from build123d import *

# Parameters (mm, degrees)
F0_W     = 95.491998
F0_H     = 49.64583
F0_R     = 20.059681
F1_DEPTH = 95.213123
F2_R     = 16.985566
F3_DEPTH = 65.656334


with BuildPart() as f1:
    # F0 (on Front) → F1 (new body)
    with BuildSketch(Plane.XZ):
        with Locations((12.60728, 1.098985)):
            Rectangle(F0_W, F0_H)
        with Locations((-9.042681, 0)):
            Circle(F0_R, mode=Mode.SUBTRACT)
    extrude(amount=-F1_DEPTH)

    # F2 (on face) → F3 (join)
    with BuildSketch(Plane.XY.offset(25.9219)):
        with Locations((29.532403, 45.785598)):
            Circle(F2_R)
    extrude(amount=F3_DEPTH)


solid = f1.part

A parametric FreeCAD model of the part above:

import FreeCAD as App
import Part
import Sketcher

V = App.Vector
Q = App.Units.Quantity


def add_polygon(sketch, points):
    """Adds a closed chain of lines whose ends are joined by coincident constraints."""
    first, n = sketch.GeometryCount, len(points)
    for a, b in zip(points, points[1:] + points[:1]):
        sketch.addGeometry(Part.LineSegment(App.Vector(*a, 0), App.Vector(*b, 0)), False)
    for i in range(n):
        sketch.addConstraint(Sketcher.Constraint("Coincident", first + i, 2, first + (i + 1) % n, 1))

doc = App.newDocument("Part")
body = doc.addObject("PartDesign::Body", "Body")

sketch1 = body.newObject("Sketcher::SketchObject", "Sketch")
sketch1.AttachmentSupport = (doc.getObject("XZ_Plane"), [""])
sketch1.MapMode = "FlatFace"
add_polygon(sketch1, [(-35, 26), (-35, -24), (60, -24), (60, 26)])
sketch1.addGeometry(Part.Circle(V(-9, 0, 0), V(0, 0, 1), 20), False)
sketch1.addConstraint(Sketcher.Constraint("Vertical", 0))
sketch1.addConstraint(Sketcher.Constraint("Horizontal", 1))
sketch1.addConstraint(Sketcher.Constraint("Vertical", 2))
sketch1.addConstraint(Sketcher.Constraint("Horizontal", 3))
sketch1.addConstraint(Sketcher.Constraint("PointOnObject", 4, 3, -1))
sketch1.addConstraint(Sketcher.Constraint("Diameter", 4, Q("40.119362 mm")))
sketch1.addConstraint(Sketcher.Constraint("DistanceY", 0, 2, 0, 1, Q("49.64583 mm")))
sketch1.addConstraint(Sketcher.Constraint("DistanceY", -1, 1, 2, 2, Q("25.9219 mm")))
sketch1.addConstraint(Sketcher.Constraint("DistanceX", 1, 1, 1, 2, Q("95.491998 mm")))
sketch1.addConstraint(Sketcher.Constraint("DistanceX", 4, 3, -1, 1, Q("9.042681 mm")))
sketch1.addConstraint(Sketcher.Constraint("DistanceX", 0, 2, -1, 1, Q("35.138719 mm")))
pad1 = body.newObject("PartDesign::Pad", "Pad")
pad1.Profile = sketch1
pad1.Length = 95.213123
pad1.Reversed = True

sketch2 = body.newObject("Sketcher::SketchObject", "Sketch001")
sketch2.AttachmentSupport = (doc.getObject("XY_Plane"), [""])
sketch2.MapMode = "FlatFace"
sketch2.AttachmentOffset = App.Placement(V(0, 0, 25.9219), App.Rotation())
sketch2.addGeometry(Part.Circle(V(30, 46, 0), V(0, 0, 1), 17), False)
sketch2.addConstraint(Sketcher.Constraint("Diameter", 0, Q("33.971132 mm")))
sketch2.addConstraint(Sketcher.Constraint("DistanceX", -1, 1, 0, 3, Q("29.532403 mm")))
sketch2.addConstraint(Sketcher.Constraint("DistanceY", -1, 1, 0, 3, Q("45.785598 mm")))
pad2 = body.newObject("PartDesign::Pad", "Pad001")
pad2.Profile = sketch2
pad2.Length = 65.656334

doc.recompute()
